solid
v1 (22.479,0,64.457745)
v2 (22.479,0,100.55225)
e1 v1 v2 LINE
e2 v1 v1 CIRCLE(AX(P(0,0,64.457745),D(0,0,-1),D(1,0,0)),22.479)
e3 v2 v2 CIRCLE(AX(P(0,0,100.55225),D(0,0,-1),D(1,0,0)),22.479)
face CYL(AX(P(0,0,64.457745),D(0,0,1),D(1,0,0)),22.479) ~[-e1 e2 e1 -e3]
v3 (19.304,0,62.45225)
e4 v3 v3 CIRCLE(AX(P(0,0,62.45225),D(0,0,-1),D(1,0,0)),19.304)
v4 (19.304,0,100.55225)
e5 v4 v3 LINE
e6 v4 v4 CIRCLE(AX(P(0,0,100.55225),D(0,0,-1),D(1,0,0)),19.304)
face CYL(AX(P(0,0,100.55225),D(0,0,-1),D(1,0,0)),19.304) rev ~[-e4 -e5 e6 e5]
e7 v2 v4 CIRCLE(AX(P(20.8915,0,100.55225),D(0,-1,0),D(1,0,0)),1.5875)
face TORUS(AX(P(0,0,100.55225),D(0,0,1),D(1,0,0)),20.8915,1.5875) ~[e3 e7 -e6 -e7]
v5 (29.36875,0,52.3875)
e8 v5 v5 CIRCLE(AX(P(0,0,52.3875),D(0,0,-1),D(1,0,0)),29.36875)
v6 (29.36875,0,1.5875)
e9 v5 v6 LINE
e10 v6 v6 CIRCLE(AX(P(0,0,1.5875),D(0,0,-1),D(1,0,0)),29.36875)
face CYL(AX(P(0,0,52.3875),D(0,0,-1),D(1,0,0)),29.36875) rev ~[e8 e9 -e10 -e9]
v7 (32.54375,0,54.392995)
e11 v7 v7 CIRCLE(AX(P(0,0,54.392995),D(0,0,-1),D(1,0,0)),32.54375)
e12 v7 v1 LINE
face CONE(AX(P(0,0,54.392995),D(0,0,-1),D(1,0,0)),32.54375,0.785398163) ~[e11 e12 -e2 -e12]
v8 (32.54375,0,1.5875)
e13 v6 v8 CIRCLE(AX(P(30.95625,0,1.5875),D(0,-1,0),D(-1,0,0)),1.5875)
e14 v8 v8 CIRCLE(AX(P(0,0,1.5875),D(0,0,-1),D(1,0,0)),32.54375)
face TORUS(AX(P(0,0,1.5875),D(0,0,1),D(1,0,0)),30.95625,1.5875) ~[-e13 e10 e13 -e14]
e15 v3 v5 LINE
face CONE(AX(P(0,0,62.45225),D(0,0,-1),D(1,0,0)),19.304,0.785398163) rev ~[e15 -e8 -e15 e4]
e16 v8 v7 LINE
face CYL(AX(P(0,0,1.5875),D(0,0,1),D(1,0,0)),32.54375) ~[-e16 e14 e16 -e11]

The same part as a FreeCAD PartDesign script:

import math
import FreeCAD as App
import Part
import Sketcher
from FreeCAD import Vector
Q = App.Units.Quantity

doc = App.newDocument("Part")
body = doc.addObject("PartDesign::Body", "Body")

# Sketch on XZ plane
sketch1 = body.newObject("Sketcher::SketchObject", "Sketch")
sketch1.AttachmentSupport = (doc.getObject("XZ_Plane"), [""])
sketch1.MapMode = "FlatFace"
sketch1.addGeometry([
    Part.LineSegment(Vector(29.4, 52.4, 0), Vector(29.4, 1.6, 0)),  # 0
    Part.ArcOfCircle(Part.Circle(Vector(31, 1.6, 0), Vector(0, 0, 1), 1.6), math.radians(180), math.radians(360)),  # 1
    Part.LineSegment(Vector(32.5, 1.6, 0), Vector(32.5, 54.4, 0)),  # 2
    Part.LineSegment(Vector(32.5, 54.4, 0), Vector(22.5, 64.5, 0)),  # 3
    Part.LineSegment(Vector(22.5, 64.5, 0), Vector(22.5, 100.6, 0)),  # 4
    Part.ArcOfCircle(Part.Circle(Vector(20.9, 100.6, 0), Vector(0, 0, 1), 1.6), math.radians(0), math.radians(180)),  # 5
    Part.LineSegment(Vector(19.3, 100.6, 0), Vector(19.3, 62.5, 0)),  # 6
    Part.LineSegment(Vector(19.3, 62.5, 0), Vector(29.4, 52.4, 0)),  # 7
], False)
sketch1.addConstraint([
    Sketcher.Constraint("Tangent", 0, 2, 1, 1),
    Sketcher.Constraint("Tangent", 1, 2, 2, 1),
    Sketcher.Constraint("Coincident", 2, 2, 3, 1),
    Sketcher.Constraint("Coincident", 3, 2, 4, 1),
    Sketcher.Constraint("Tangent", 4, 2, 5, 1),
    Sketcher.Constraint("Tangent", 5, 2, 6, 1),
    Sketcher.Constraint("Coincident", 6, 2, 7, 1),
    Sketcher.Constraint("Coincident", 7, 2, 0, 1),
    Sketcher.Constraint("Vertical", 0),
    Sketcher.Constraint("Vertical", 2),
    Sketcher.Constraint("Vertical", 4),
    Sketcher.Constraint("Vertical", 6),
    Sketcher.Constraint("Equal", 1, 5),
    Sketcher.Constraint("Parallel", 3, 7),
    Sketcher.Constraint("DistanceY", 0, 2, 0, 1, Q("2 in")),
    Sketcher.Constraint("DistanceY", 6, 2, 6, 1, Q("1.5 in")),
    Sketcher.Constraint("Angle", 3, Q("135 deg")),
    Sketcher.Constraint("Radius", 1, Q("0.0625 in")),
    Sketcher.Constraint("DistanceX", -1, 1, 5, 2, Q("0.76 in")),
    Sketcher.Constraint("DistanceX", -1, 1, 1, 3, Q("1.21875 in")),
    Sketcher.Constraint("DistanceY", -1, 1, 1, 3, Q("0.0625 in")),
    Sketcher.Constraint("DistanceY", 2, 1, 2, 2, 52.805495),
])
revolution = body.newObject("PartDesign::Revolution", "Revolution")
revolution.Profile = sketch1
revolution.ReferenceAxis = (sketch1, ["V_Axis"])
revolution.Angle = 360

doc.recompute()
